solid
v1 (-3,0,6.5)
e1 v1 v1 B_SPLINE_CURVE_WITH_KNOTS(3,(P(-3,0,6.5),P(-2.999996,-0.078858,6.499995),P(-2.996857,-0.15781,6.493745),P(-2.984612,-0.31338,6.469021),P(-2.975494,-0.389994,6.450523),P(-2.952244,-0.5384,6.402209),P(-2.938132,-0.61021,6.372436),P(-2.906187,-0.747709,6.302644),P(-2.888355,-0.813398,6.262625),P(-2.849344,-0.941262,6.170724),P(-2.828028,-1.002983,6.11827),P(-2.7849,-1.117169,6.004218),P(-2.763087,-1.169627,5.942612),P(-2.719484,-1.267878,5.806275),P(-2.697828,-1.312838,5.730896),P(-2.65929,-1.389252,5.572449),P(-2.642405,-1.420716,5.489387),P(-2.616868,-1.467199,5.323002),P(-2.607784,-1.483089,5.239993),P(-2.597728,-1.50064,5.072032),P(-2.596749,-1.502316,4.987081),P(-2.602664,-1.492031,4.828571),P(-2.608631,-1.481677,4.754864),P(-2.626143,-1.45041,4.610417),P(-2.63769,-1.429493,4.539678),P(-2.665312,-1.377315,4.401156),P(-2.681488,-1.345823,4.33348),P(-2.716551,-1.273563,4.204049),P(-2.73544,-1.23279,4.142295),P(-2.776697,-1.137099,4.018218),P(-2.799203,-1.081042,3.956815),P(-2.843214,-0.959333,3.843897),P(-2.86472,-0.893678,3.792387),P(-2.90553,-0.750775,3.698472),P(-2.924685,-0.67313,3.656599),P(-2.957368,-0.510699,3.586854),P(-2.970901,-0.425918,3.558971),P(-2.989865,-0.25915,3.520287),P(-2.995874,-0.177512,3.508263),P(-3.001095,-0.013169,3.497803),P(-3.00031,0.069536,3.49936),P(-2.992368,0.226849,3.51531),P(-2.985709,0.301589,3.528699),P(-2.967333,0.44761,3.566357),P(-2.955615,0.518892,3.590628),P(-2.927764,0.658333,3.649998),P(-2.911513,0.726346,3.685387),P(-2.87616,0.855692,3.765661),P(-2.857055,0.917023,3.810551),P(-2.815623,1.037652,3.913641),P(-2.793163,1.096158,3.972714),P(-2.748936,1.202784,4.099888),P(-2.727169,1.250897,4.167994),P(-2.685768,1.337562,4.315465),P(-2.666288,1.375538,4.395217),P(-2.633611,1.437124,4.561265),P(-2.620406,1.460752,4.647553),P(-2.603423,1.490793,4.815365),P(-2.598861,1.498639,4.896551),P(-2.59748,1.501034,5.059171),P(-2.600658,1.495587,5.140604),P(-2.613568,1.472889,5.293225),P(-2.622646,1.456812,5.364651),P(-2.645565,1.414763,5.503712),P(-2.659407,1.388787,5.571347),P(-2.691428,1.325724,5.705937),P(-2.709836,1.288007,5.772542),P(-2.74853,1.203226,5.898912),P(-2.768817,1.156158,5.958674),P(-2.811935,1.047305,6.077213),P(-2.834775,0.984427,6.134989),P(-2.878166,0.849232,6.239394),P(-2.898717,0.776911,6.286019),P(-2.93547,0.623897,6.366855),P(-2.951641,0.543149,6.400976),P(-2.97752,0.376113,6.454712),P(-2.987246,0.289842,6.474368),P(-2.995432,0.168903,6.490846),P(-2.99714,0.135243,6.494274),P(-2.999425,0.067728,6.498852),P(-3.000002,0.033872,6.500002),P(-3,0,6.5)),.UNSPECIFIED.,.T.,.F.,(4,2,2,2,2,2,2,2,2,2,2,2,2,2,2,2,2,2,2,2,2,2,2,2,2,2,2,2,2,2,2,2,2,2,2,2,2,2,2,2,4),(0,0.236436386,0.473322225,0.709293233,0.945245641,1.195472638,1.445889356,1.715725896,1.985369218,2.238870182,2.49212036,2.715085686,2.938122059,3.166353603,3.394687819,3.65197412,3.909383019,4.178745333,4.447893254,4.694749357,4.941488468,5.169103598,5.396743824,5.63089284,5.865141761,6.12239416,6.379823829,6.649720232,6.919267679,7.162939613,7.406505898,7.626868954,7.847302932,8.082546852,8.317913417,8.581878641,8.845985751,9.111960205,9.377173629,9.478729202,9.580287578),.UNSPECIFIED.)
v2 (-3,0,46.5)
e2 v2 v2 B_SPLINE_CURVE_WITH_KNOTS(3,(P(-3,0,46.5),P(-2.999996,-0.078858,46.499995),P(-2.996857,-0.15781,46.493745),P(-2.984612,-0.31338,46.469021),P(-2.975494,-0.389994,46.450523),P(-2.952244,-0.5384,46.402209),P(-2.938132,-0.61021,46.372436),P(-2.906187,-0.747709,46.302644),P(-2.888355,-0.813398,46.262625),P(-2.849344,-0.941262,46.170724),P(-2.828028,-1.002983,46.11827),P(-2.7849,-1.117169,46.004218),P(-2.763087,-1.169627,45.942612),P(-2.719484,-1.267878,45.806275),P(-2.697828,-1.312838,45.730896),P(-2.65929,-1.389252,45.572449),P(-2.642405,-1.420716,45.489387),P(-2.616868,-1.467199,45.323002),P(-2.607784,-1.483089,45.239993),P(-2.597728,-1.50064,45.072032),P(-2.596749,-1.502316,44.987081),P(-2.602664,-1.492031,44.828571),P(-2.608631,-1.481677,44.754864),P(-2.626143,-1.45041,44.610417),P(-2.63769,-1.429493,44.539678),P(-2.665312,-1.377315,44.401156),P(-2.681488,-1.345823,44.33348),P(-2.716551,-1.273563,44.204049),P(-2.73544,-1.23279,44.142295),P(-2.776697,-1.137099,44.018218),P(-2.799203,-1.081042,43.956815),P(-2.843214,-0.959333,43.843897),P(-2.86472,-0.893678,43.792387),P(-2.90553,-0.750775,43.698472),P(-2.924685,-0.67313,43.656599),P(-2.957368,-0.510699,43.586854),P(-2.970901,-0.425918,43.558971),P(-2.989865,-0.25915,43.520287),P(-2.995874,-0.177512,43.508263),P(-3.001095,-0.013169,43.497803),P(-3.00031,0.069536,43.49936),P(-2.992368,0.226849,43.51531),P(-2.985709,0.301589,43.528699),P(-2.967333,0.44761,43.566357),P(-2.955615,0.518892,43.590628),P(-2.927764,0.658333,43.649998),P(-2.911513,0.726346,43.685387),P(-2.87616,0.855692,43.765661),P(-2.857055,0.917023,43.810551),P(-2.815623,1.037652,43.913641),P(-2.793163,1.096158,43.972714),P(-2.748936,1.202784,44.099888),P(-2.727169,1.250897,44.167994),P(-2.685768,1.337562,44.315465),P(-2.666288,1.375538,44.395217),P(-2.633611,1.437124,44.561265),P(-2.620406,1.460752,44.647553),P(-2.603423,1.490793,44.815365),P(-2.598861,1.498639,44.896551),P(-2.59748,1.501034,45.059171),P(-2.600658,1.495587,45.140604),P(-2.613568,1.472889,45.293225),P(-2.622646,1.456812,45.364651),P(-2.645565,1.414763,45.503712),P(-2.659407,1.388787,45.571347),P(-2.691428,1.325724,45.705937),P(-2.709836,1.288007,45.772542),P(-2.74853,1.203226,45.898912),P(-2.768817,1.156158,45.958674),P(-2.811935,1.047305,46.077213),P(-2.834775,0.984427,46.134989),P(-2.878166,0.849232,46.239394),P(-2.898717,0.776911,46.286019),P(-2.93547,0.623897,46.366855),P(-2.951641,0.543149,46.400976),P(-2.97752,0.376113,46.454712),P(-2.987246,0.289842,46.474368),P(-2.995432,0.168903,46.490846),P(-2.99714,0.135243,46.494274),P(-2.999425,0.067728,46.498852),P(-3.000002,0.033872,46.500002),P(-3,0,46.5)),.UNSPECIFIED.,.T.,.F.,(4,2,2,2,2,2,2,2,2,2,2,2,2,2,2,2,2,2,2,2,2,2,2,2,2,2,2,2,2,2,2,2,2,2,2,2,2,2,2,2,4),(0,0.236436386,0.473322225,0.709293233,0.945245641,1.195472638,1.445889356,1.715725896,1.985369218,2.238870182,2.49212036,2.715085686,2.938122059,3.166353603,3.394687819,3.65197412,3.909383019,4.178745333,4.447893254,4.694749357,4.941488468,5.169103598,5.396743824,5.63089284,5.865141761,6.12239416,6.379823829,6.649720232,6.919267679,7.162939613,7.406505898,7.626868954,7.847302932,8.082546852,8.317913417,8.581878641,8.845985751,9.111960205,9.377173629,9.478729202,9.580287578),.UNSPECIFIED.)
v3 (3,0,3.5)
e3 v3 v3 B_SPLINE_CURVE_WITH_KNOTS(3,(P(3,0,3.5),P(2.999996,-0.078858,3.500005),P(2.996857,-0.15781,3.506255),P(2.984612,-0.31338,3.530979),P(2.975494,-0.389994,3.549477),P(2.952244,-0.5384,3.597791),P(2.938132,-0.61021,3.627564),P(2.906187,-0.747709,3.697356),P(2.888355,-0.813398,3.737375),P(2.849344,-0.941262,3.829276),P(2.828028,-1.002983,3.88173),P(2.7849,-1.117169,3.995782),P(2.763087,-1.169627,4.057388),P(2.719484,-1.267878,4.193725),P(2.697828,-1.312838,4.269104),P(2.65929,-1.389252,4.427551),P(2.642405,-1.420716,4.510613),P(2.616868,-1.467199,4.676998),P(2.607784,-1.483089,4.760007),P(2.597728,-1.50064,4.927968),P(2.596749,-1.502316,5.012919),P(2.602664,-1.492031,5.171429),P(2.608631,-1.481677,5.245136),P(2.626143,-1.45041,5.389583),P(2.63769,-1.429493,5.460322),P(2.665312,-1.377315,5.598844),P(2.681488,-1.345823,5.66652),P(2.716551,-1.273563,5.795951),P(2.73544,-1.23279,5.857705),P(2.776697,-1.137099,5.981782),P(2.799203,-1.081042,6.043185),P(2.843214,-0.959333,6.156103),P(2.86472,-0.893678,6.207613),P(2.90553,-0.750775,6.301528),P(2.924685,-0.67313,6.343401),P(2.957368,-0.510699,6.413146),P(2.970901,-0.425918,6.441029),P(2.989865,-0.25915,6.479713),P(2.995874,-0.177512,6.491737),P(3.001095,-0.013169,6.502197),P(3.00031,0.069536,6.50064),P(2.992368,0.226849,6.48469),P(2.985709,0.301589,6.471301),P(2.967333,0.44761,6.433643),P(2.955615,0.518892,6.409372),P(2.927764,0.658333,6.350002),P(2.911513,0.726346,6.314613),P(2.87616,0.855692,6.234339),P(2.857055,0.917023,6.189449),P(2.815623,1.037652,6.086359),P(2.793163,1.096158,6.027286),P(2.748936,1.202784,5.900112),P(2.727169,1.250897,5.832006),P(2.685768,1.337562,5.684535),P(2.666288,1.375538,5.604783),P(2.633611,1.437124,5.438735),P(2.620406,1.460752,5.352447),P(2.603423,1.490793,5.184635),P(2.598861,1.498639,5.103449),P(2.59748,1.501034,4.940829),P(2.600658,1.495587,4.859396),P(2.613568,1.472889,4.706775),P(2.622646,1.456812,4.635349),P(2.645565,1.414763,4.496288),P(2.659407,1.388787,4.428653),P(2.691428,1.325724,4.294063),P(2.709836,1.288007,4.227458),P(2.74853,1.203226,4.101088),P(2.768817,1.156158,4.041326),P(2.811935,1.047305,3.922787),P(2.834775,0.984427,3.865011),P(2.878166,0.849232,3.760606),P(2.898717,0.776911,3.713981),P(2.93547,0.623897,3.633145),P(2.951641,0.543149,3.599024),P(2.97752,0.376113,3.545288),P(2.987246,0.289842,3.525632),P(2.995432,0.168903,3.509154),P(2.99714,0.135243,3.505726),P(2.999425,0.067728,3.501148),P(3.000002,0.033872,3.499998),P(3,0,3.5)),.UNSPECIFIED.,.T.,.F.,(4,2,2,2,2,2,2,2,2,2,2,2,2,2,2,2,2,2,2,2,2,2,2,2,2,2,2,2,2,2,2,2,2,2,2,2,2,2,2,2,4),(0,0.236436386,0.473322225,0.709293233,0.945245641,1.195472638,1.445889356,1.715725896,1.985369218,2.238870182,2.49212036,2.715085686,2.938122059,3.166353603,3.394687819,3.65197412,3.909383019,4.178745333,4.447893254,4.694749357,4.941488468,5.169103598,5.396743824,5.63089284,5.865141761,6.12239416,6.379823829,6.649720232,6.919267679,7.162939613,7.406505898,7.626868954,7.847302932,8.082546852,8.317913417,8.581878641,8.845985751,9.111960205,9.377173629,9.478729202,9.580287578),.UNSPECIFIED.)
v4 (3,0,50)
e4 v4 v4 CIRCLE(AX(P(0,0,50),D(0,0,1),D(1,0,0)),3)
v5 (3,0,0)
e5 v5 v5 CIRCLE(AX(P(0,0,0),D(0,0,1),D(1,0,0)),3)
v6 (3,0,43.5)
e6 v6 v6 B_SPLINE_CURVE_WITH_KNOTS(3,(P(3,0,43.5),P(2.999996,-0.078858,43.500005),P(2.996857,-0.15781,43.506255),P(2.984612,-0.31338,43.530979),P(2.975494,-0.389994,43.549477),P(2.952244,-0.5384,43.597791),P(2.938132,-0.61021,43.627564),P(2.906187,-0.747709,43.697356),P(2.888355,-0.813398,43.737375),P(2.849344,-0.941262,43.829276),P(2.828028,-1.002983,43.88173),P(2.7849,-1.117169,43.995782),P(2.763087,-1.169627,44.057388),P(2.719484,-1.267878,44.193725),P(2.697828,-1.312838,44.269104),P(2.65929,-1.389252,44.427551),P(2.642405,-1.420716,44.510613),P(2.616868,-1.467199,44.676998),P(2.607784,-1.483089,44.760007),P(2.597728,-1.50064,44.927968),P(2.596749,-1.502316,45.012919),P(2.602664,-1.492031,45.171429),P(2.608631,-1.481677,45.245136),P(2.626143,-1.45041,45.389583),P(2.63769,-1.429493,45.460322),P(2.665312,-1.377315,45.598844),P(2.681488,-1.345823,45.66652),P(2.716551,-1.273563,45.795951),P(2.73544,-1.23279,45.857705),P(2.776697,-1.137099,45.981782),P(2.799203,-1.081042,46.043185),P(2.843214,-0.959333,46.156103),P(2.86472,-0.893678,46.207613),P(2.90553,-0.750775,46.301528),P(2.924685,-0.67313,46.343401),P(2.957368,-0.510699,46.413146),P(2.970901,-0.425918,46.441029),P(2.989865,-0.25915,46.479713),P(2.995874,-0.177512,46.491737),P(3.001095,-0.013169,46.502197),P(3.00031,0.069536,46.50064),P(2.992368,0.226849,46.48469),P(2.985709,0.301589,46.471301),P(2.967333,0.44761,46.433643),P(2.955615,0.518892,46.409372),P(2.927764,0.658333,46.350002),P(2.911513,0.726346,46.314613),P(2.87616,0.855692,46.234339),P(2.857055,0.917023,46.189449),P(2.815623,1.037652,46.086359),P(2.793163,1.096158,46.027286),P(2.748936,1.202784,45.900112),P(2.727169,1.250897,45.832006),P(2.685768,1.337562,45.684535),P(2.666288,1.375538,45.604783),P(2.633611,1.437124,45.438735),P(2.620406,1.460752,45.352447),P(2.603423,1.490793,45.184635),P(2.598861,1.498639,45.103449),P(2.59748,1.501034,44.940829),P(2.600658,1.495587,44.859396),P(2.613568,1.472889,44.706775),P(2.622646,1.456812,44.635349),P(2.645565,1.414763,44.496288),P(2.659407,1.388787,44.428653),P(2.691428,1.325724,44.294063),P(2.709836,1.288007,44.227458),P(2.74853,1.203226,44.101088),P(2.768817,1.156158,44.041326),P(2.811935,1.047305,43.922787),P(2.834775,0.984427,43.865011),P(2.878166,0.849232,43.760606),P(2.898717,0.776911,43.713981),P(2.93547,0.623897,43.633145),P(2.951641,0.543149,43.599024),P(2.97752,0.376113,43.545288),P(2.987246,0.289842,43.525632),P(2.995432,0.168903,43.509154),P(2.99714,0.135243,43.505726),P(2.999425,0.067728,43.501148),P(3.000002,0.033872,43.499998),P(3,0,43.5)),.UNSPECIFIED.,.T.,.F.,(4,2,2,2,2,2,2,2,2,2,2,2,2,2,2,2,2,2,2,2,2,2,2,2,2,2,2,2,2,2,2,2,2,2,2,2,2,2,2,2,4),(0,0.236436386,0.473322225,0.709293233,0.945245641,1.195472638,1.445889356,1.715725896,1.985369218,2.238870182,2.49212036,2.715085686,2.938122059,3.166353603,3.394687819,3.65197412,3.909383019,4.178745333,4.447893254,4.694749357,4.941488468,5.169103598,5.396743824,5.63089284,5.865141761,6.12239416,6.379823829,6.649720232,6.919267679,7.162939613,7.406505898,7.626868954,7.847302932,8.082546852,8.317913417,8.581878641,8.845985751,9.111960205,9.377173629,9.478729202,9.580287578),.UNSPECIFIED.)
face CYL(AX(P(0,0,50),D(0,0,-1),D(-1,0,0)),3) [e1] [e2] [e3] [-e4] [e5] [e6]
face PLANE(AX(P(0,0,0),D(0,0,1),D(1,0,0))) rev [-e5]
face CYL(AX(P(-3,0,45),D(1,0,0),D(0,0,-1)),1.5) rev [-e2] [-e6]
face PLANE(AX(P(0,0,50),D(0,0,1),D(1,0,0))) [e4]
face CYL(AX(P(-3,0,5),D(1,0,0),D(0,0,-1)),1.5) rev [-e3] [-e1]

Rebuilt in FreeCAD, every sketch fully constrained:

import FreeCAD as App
import Part
import Sketcher

V = App.Vector

doc = App.newDocument("Part")
body = doc.addObject("PartDesign::Body", "Body")

sketch1 = doc.addObject("Sketcher::SketchObject", "Sketch")
body.addObject(sketch1)
sketch1.AttachmentSupport = (doc.XY_Plane, [""])
sketch1.MapMode = "FlatFace"
sketch1.addGeometry(Part.Circle(V(0, 0, 0), V(0, 0, 1), 3), False)
sketch1.addConstraint([
    Sketcher.Constraint("Coincident", 0, 3, -1, 1),
    Sketcher.Constraint("Diameter", 0, 6.0),
])
pad1 = doc.addObject("PartDesign::Pad", "Pad")
body.addObject(pad1)
pad1.Profile = sketch1
pad1.Length = 50

sketch2 = doc.addObject("Sketcher::SketchObject", "Sketch001")
body.addObject(sketch2)
sketch2.AttachmentSupport = (doc.YZ_Plane, [""])
sketch2.MapMode = "FlatFace"
sketch2.addGeometry([
    Part.Circle(V(0, 45, 0), V(0, 0, 1), 1.5),
    Part.Circle(V(0, 5, 0), V(0, 0, 1), 1.5),
], False)
sketch2.addConstraint([
    Sketcher.Constraint("Equal", 0, 1),
    Sketcher.Constraint("PointOnObject", 0, 3, -2),
    Sketcher.Constraint("PointOnObject", 1, 3, -2),
    Sketcher.Constraint("Diameter", 0, 3.0),
    Sketcher.Constraint("DistanceY", -1, 1, 0, 3, 45.0),
    Sketcher.Constraint("DistanceY", -1, 1, 1, 3, 5.0),
])
pocket1 = doc.addObject("PartDesign::Pocket", "Pocket")
body.addObject(pocket1)
pocket1.Profile = sketch2
pocket1.Type = "ThroughAll"
pocket1.Midplane = True

doc.recompute()
